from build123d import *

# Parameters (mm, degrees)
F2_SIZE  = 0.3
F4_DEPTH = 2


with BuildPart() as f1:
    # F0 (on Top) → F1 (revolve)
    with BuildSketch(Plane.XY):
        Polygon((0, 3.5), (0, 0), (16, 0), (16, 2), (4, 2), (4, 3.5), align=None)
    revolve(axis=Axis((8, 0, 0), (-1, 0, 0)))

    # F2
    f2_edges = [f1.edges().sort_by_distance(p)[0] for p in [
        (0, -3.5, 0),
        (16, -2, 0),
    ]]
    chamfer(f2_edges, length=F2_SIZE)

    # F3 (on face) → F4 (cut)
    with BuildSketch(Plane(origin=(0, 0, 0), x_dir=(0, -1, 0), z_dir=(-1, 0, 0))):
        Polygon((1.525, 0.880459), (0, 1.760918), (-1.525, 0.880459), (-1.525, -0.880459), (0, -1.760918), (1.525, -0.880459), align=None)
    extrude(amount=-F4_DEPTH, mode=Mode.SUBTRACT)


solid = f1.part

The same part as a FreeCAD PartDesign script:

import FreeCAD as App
import Part
import Sketcher
Q = App.Units.Quantity


def edges_at(feature, points):
    """Names of the edges that pass closest to the given points."""
    edges = feature.Shape.Edges
    near = lambda p: min(range(len(edges)), key=lambda i: edges[i].distToShape(Part.Vertex(*p))[0])
    return sorted({f"Edge{near(p) + 1}" for p in points})

doc = App.newDocument("Part")
body = doc.addObject("PartDesign::Body", "Body")

sketch1 = body.newObject("Sketcher::SketchObject", "Sketch")
sketch1.AttachmentSupport = (doc.getObject("XY_Plane"), [""])
sketch1.MapMode = "FlatFace"
sketch1.addGeometry(Part.LineSegment(App.Vector(0, 3.5, 0), App.Vector(0, 0, 0)), False)
sketch1.addGeometry(Part.LineSegment(App.Vector(0, 0, 0), App.Vector(16, 0, 0)), False)
sketch1.addGeometry(Part.LineSegment(App.Vector(16, 0, 0), App.Vector(16, 2, 0)), False)
sketch1.addGeometry(Part.LineSegment(App.Vector(16, 2, 0), App.Vector(4, 2, 0)), False)
sketch1.addGeometry(Part.LineSegment(App.Vector(4, 2, 0), App.Vector(4, 3.5, 0)), False)
sketch1.addGeometry(Part.LineSegment(App.Vector(4, 3.5, 0), App.Vector(0, 3.5, 0)), False)
sketch1.addConstraint(Sketcher.Constraint("Coincident", 0, 2, 1, 1))
sketch1.addConstraint(Sketcher.Constraint("Coincident", 1, 2, 2, 1))
sketch1.addConstraint(Sketcher.Constraint("Coincident", 2, 2, 3, 1))
sketch1.addConstraint(Sketcher.Constraint("Coincident", 3, 2, 4, 1))
sketch1.addConstraint(Sketcher.Constraint("Coincident", 4, 2, 5, 1))
sketch1.addConstraint(Sketcher.Constraint("Coincident", 5, 2, 0, 1))
sketch1.addConstraint(Sketcher.Constraint("Vertical", 0))
sketch1.addConstraint(Sketcher.Constraint("Horizontal", 1))
sketch1.addConstraint(Sketcher.Constraint("Vertical", 2))
sketch1.addConstraint(Sketcher.Constraint("Horizontal", 3))
sketch1.addConstraint(Sketcher.Constraint("Vertical", 4))
sketch1.addConstraint(Sketcher.Constraint("Horizontal", 5))
sketch1.addConstraint(Sketcher.Constraint("Coincident", 0, 2, -1, 1))
sketch1.addConstraint(Sketcher.Constraint("DistanceX", 1, 1, 1, 2, 16.0))
sketch1.addConstraint(Sketcher.Constraint("DistanceX", 3, 2, 3, 1, 12.0))
sketch1.addConstraint(Sketcher.Constraint("DistanceY", 2, 1, 2, 2, 2.0))
sketch1.addConstraint(Sketcher.Constraint("DistanceY", 0, 2, 0, 1, 3.5))
revolution = body.newObject("PartDesign::Revolution", "Revolution")
revolution.Profile = sketch1
revolution.ReferenceAxis = (sketch1, ["H_Axis"])
revolution.Angle = 360
doc.recompute()

chamfer = body.newObject("PartDesign::Chamfer", "Chamfer")
chamfer.Base = (revolution, edges_at(revolution, [(0, -3.5, 0), (16, -2, 0)]))
chamfer.Size = 0.3

sketch2 = body.newObject("Sketcher::SketchObject", "Sketch001")
sketch2.AttachmentSupport = (doc.getObject("YZ_Plane"), [""])
sketch2.MapMode = "FlatFace"
sketch2.addGeometry(Part.LineSegment(App.Vector(-1.5, 0.9, 0), App.Vector(0, 1.8, 0)), False)
sketch2.addGeometry(Part.LineSegment(App.Vector(0, 1.8, 0), App.Vector(1.5, 0.9, 0)), False)
sketch2.addGeometry(Part.LineSegment(App.Vector(1.5, 0.9, 0), App.Vector(1.5, -0.9, 0)), False)
sketch2.addGeometry(Part.LineSegment(App.Vector(1.5, -0.9, 0), App.Vector(0, -1.8, 0)), False)
sketch2.addGeometry(Part.LineSegment(App.Vector(0, -1.8, 0), App.Vector(-1.5, -0.9, 0)), False)
sketch2.addGeometry(Part.LineSegment(App.Vector(-1.5, -0.9, 0), App.Vector(-1.5, 0.9, 0)), False)
sketch2.addConstraint(Sketcher.Constraint("Coincident", 0, 2, 1, 1))
sketch2.addConstraint(Sketcher.Constraint("Coincident", 1, 2, 2, 1))
sketch2.addConstraint(Sketcher.Constraint("Coincident", 2, 2, 3, 1))
sketch2.addConstraint(Sketcher.Constraint("Coincident", 3, 2, 4, 1))
sketch2.addConstraint(Sketcher.Constraint("Coincident", 4, 2, 5, 1))
sketch2.addConstraint(Sketcher.Constraint("Coincident", 5, 2, 0, 1))
sketch2.addConstraint(Sketcher.Constraint("Vertical", 2))
sketch2.addConstraint(Sketcher.Constraint("Vertical", 5))
sketch2.addConstraint(Sketcher.Constraint("Symmetric", 0, 2, 3, 2, -1, 1))
sketch2.addConstraint(Sketcher.Constraint("Symmetric", 1, 2, 4, 2, -1, 1))
sketch2.addConstraint(Sketcher.Constraint("PointOnObject", 0, 2, -2))
sketch2.addConstraint(Sketcher.Constraint("Parallel", 0, 3))
sketch2.addConstraint(Sketcher.Constraint("Horizontal", 2, 2, 4, 2))
sketch2.addConstraint(Sketcher.Constraint("Angle", 0, Q("29.999995 deg")))
sketch2.addConstraint(Sketcher.Constraint("DistanceX", 4, 2, 2, 2, 3.05))
sketch2.addConstraint(Sketcher.Constraint("DistanceY", 2, 2, 2, 1, 1.760918))
pocket1 = body.newObject("PartDesign::Pocket", "Pocket")
pocket1.Profile = sketch2
pocket1.Length = 2
pocket1.Reversed = True

doc.recompute()
